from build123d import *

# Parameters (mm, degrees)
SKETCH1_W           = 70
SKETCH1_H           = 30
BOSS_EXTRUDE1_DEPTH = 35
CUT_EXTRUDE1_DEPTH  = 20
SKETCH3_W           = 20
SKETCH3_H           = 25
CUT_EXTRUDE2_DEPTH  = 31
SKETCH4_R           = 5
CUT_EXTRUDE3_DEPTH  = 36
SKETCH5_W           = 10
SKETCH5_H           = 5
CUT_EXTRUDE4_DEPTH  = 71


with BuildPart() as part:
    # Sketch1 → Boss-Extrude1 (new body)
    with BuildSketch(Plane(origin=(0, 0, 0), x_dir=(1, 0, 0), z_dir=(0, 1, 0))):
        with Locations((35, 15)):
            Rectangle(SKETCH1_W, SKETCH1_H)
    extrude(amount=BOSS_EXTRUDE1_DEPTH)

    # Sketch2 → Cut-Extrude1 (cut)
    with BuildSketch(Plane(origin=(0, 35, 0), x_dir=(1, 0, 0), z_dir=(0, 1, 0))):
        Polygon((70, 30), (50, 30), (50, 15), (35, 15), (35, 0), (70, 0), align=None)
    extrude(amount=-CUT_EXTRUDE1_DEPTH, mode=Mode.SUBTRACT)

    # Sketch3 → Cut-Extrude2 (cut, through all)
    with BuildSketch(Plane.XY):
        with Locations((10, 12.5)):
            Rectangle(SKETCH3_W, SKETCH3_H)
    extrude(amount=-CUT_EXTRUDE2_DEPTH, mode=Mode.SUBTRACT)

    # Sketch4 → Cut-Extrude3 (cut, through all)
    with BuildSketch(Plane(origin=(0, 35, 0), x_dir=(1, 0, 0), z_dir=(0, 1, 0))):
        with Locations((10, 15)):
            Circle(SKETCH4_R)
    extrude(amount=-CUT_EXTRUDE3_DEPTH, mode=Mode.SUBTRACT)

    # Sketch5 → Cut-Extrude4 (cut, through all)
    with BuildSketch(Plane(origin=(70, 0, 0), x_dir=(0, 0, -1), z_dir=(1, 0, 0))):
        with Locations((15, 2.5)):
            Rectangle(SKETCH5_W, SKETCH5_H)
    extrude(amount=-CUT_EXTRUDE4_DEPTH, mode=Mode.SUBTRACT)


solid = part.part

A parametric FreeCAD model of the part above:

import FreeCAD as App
import Part
import Sketcher

V = App.Vector

doc = App.newDocument("Part")
body = doc.addObject("PartDesign::Body", "Body")

# Sketch on XZ plane
sketch1 = doc.addObject("Sketcher::SketchObject", "Sketch")
body.addObject(sketch1)
sketch1.AttachmentSupport = (doc.XZ_Plane, [""])
sketch1.MapMode = "FlatFace"
sketch1.addGeometry([
    Part.LineSegment(V(0, -30, 0), V(0, 0, 0)),
    Part.LineSegment(V(0, 0, 0), V(70, 0, 0)),
    Part.LineSegment(V(70, 0, 0), V(70, -30, 0)),
    Part.LineSegment(V(70, -30, 0), V(0, -30, 0)),
], False)
sketch1.addConstraint([
    Sketcher.Constraint("Coincident", 0, 2, 1, 1),
    Sketcher.Constraint("Coincident", 1, 2, 2, 1),
    Sketcher.Constraint("Coincident", 2, 2, 3, 1),
    Sketcher.Constraint("Coincident", 3, 2, 0, 1),
    Sketcher.Constraint("Vertical", 0),
    Sketcher.Constraint("Horizontal", 1),
    Sketcher.Constraint("Vertical", 2),
    Sketcher.Constraint("Horizontal", 3),
    Sketcher.Constraint("Coincident", 0, 2, -1, 1),
    Sketcher.Constraint("DistanceX", 1, 1, 1, 2, 70.0),
    Sketcher.Constraint("DistanceY", 0, 1, 0, 2, 30.0),
])
pad1 = doc.addObject("PartDesign::Pad", "Pad")
body.addObject(pad1)
pad1.Profile = sketch1
pad1.Length = 35
pad1.Reversed = True

# Sketch on XZ plane
sketch2 = doc.addObject("Sketcher::SketchObject", "Sketch001")
body.addObject(sketch2)
sketch2.AttachmentSupport = (doc.XZ_Plane, [""])
sketch2.MapMode = "FlatFace"
sketch2.AttachmentOffset = App.Placement(V(0, 0, -35), App.Rotation())
sketch2.addGeometry([
    Part.LineSegment(V(70, -30, 0), V(50, -30, 0)),  # 0
    Part.LineSegment(V(50, -30, 0), V(50, -15, 0)),  # 1
    Part.LineSegment(V(50, -15, 0), V(35, -15, 0)),  # 2
    Part.LineSegment(V(35, -15, 0), V(35, 0, 0)),  # 3
    Part.LineSegment(V(35, 0, 0), V(70, 0, 0)),  # 4
    Part.LineSegment(V(70, 0, 0), V(70, -30, 0)),  # 5
], False)
sketch2.addConstraint([
    Sketcher.Constraint("Coincident", 0, 2, 1, 1),
    Sketcher.Constraint("Coincident", 1, 2, 2, 1),
    Sketcher.Constraint("Coincident", 2, 2, 3, 1),
    Sketcher.Constraint("Coincident", 3, 2, 4, 1),
    Sketcher.Constraint("Coincident", 4, 2, 5, 1),
    Sketcher.Constraint("Coincident", 5, 2, 0, 1),
    Sketcher.Constraint("Horizontal", 0),
    Sketcher.Constraint("Vertical", 1),
    Sketcher.Constraint("Horizontal", 2),
    Sketcher.Constraint("Vertical", 3),
    Sketcher.Constraint("Horizontal", 4),
    Sketcher.Constraint("Vertical", 5),
    Sketcher.Constraint("PointOnObject", 3, 2, -1),
    Sketcher.Constraint("Equal", 2, 1),
    Sketcher.Constraint("Equal", 1, 3),
    Sketcher.Constraint("DistanceX", 0, 2, 0, 1, 20.0),
    Sketcher.Constraint("DistanceX", 2, 2, 2, 1, 15.0),
    Sketcher.Constraint("DistanceX", -1, 1, 0, 2, 50.0),
])
pocket1 = doc.addObject("PartDesign::Pocket", "Pocket")
body.addObject(pocket1)
pocket1.Profile = sketch2
pocket1.Length = 20
pocket1.Reversed = True

# Sketch on XY plane
sketch3 = doc.addObject("Sketcher::SketchObject", "Sketch002")
body.addObject(sketch3)
sketch3.AttachmentSupport = (doc.XY_Plane, [""])
sketch3.MapMode = "FlatFace"
sketch3.addGeometry([
    Part.LineSegment(V(0, 25, 0), V(0, 0, 0)),
    Part.LineSegment(V(0, 0, 0), V(20, 0, 0)),
    Part.LineSegment(V(20, 0, 0), V(20, 25, 0)),
    Part.LineSegment(V(20, 25, 0), V(0, 25, 0)),
], False)
sketch3.addConstraint([
    Sketcher.Constraint("Coincident", 0, 2, 1, 1),
    Sketcher.Constraint("Coincident", 1, 2, 2, 1),
    Sketcher.Constraint("Coincident", 2, 2, 3, 1),
    Sketcher.Constraint("Coincident", 3, 2, 0, 1),
    Sketcher.Constraint("Vertical", 0),
    Sketcher.Constraint("Horizontal", 1),
    Sketcher.Constraint("Vertical", 2),
    Sketcher.Constraint("Horizontal", 3),
    Sketcher.Constraint("Coincident", 0, 2, -1, 1),
    Sketcher.Constraint("DistanceX", 1, 1, 1, 2, 20.0),
    Sketcher.Constraint("DistanceY", 0, 2, 0, 1, 25.0),
])
pocket2 = doc.addObject("PartDesign::Pocket", "Pocket001")
body.addObject(pocket2)
pocket2.Profile = sketch3
pocket2.Type = "ThroughAll"

# Sketch on XZ plane
sketch4 = doc.addObject("Sketcher::SketchObject", "Sketch003")
body.addObject(sketch4)
sketch4.AttachmentSupport = (doc.XZ_Plane, [""])
sketch4.MapMode = "FlatFace"
sketch4.AttachmentOffset = App.Placement(V(0, 0, -35), App.Rotation())
sketch4.addGeometry(Part.Circle(V(10, -15, 0), V(0, 0, 1), 5), False)
sketch4.addConstraint([
    Sketcher.Constraint("Diameter", 0, 10.0),
    Sketcher.Constraint("DistanceX", -1, 1, 0, 3, 10.0),
    Sketcher.Constraint("DistanceY", 0, 3, -1, 1, 15.0),
])
pocket3 = doc.addObject("PartDesign::Pocket", "Pocket002")
body.addObject(pocket3)
pocket3.Profile = sketch4
pocket3.Type = "ThroughAll"
pocket3.Reversed = True

# Sketch on YZ plane
sketch5 = doc.addObject("Sketcher::SketchObject", "Sketch004")
body.addObject(sketch5)
sketch5.AttachmentSupport = (doc.YZ_Plane, [""])
sketch5.MapMode = "FlatFace"
sketch5.AttachmentOffset = App.Placement(V(0, 0, 70), App.Rotation())
sketch5.addGeometry([
    Part.LineSegment(V(5, -10, 0), V(0, -10, 0)),
    Part.LineSegment(V(0, -10, 0), V(0, -20, 0)),
    Part.LineSegment(V(0, -20, 0), V(5, -20, 0)),
    Part.LineSegment(V(5, -20, 0), V(5, -10, 0)),
], False)
sketch5.addConstraint([
    Sketcher.Constraint("Coincident", 0, 2, 1, 1),
    Sketcher.Constraint("Coincident", 1, 2, 2, 1),
    Sketcher.Constraint("Coincident", 2, 2, 3, 1),
    Sketcher.Constraint("Coincident", 3, 2, 0, 1),
    Sketcher.Constraint("Horizontal", 0),
    Sketcher.Constraint("Vertical", 1),
    Sketcher.Constraint("Horizontal", 2),
    Sketcher.Constraint("Vertical", 3),
    Sketcher.Constraint("PointOnObject", 0, 2, -2),
    Sketcher.Constraint("DistanceX", 0, 2, 0, 1, 5.0),
    Sketcher.Constraint("DistanceY", 1, 2, 1, 1, 10.0),
    Sketcher.Constraint("DistanceY", 0, 2, -1, 1, 10.0),
])
pocket4 = doc.addObject("PartDesign::Pocket", "Pocket003")
body.addObject(pocket4)
pocket4.Profile = sketch5
pocket4.Type = "ThroughAll"

doc.recompute()
